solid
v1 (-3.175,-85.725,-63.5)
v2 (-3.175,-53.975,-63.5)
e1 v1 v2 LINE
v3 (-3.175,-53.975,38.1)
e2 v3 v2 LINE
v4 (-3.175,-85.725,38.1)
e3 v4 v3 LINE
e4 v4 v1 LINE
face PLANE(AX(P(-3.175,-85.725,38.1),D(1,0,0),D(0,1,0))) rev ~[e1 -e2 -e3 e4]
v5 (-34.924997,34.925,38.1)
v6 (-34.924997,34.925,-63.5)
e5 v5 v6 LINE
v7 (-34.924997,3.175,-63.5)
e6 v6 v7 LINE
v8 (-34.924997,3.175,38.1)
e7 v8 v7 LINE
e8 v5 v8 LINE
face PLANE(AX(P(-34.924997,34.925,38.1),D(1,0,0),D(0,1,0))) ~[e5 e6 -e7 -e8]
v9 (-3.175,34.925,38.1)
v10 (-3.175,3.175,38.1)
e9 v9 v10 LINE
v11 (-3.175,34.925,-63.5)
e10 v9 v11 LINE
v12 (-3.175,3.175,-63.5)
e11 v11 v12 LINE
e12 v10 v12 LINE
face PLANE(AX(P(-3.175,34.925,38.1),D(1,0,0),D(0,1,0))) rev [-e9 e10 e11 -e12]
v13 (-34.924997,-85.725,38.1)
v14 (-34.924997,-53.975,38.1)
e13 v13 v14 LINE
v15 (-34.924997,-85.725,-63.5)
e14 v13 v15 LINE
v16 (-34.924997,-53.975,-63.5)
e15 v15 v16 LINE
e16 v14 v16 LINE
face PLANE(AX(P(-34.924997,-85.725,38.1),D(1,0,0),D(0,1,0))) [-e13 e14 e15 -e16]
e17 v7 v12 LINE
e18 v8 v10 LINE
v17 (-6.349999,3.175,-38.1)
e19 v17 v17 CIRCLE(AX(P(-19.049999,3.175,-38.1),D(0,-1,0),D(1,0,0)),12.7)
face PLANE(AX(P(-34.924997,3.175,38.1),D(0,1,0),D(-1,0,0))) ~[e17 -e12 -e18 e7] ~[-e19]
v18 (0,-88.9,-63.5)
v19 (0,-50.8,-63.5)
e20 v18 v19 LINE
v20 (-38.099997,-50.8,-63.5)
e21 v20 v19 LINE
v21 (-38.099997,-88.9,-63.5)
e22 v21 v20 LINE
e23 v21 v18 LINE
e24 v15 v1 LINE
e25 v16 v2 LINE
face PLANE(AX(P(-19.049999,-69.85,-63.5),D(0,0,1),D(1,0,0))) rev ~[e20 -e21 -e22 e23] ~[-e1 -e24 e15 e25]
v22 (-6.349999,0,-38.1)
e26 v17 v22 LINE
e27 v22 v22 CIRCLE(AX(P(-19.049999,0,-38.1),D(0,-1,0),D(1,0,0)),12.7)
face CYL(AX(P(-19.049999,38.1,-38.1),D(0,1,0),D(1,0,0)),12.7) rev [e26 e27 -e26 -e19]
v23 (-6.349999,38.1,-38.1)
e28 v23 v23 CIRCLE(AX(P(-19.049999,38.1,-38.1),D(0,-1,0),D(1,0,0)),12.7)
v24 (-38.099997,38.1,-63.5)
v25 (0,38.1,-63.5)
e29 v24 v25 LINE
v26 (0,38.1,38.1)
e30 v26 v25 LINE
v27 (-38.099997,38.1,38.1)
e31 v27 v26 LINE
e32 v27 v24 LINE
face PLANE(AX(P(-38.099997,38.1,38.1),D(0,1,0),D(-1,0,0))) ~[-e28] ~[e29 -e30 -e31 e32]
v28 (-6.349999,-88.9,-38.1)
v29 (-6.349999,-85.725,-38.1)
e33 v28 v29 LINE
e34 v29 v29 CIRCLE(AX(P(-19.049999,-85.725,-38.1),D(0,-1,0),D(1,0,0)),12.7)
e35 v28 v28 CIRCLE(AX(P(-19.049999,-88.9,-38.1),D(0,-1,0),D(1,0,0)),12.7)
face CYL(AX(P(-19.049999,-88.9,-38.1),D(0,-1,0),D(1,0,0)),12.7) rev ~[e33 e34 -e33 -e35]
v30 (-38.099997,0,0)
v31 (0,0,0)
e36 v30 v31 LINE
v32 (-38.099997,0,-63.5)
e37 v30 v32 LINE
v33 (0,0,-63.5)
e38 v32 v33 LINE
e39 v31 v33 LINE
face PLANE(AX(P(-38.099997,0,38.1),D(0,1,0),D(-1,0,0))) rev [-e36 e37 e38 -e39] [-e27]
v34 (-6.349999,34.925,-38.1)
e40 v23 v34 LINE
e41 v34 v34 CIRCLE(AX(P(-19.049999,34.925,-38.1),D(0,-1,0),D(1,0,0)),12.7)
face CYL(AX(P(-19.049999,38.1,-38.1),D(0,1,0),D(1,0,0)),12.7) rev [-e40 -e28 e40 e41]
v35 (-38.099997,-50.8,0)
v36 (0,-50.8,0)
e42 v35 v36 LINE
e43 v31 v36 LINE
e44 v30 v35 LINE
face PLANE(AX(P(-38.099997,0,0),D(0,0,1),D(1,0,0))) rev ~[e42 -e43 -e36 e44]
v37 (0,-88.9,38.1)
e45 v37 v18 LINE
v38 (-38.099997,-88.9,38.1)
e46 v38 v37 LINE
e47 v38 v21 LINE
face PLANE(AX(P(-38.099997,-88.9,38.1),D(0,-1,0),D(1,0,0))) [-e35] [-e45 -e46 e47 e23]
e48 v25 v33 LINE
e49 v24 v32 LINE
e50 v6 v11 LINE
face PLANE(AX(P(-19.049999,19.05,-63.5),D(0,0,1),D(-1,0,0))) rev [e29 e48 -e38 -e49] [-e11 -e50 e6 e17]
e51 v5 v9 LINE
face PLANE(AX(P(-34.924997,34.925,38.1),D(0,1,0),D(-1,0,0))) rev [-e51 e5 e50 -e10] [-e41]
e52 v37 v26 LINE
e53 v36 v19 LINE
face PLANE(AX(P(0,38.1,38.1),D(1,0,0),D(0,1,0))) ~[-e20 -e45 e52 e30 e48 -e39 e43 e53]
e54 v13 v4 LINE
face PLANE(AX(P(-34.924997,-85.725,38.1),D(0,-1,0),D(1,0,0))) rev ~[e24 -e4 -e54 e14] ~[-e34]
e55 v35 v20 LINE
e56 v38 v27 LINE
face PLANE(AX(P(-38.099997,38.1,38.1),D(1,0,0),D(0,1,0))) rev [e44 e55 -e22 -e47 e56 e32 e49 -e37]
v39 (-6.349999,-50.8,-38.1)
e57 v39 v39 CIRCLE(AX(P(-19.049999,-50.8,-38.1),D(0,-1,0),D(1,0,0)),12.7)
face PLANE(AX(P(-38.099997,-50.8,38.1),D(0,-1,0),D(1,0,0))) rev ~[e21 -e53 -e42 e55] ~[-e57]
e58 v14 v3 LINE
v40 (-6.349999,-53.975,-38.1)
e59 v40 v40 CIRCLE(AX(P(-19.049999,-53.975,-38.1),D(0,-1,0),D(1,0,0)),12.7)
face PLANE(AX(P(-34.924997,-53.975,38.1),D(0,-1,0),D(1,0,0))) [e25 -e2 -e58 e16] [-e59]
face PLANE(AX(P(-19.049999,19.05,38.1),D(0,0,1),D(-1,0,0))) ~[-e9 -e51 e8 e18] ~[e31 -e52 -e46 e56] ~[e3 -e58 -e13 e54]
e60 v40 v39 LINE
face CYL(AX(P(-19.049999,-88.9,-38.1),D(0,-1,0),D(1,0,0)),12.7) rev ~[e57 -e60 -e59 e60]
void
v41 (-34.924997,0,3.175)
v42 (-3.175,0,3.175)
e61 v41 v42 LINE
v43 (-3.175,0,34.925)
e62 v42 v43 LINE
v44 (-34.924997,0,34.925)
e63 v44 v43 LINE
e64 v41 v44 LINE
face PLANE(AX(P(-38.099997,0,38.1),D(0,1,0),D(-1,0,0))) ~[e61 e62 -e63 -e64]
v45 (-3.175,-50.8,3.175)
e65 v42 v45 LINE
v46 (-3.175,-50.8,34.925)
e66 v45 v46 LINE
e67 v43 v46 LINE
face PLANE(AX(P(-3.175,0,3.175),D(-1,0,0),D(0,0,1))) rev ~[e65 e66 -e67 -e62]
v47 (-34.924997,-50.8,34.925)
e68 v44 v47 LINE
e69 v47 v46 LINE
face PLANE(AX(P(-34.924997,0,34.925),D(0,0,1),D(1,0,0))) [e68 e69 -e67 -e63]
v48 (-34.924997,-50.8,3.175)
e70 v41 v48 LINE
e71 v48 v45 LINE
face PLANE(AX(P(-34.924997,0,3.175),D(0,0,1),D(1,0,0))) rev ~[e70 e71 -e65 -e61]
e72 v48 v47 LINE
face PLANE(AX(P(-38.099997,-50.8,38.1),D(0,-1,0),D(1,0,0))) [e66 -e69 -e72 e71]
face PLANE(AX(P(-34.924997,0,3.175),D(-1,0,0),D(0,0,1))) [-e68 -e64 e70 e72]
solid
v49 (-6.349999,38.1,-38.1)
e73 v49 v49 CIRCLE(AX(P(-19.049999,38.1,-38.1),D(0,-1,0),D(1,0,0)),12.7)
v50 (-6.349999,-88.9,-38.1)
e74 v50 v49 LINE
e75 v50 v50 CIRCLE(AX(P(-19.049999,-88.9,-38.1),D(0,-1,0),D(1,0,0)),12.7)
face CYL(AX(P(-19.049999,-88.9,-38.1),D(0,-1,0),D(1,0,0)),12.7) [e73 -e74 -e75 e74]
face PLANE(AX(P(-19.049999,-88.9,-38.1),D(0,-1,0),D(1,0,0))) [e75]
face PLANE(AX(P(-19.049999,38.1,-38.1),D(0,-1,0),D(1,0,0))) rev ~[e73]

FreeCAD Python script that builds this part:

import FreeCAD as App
import Part
import Sketcher
from FreeCAD import Vector
Q = App.Units.Quantity

doc = App.newDocument("Part")
params = doc.addObject("Spreadsheet::Sheet", "Params")
for row, (alias, value) in enumerate([
    ("sketch1_width", "1.4999999 in"),
    ("sketch1_height", "1.5 in"),
    ("sketch1_width2", "1.2499999 in"),
    ("sketch1_height2", "1.25 in"),
    ("pad1_length", "2 in"),
    ("sketch2_width", "1.4999999 in"),
    ("sketch2_height", "1.5 in"),
    ("sketch2_width2", "1.2499999 in"),
    ("sketch2_height2", "1.25 in"),
    ("pad2_length", "4 in"),
    ("sketch3_diameter", "1 in"),
    ("sketch4_diameter", "1 in"),
    ("pad3_length", "5 in"),
], start=1):
    params.set(f"A{row}", alias)
    params.set(f"B{row}", "=" + value)
    params.setAlias(f"B{row}", alias)

body = doc.addObject("PartDesign::Body", "Body")

# Sketch on XZ plane
sketch1 = body.newObject("Sketcher::SketchObject", "Sketch")
sketch1.AttachmentSupport = (doc.getObject("XZ_Plane"), [""])
sketch1.MapMode = "FlatFace"
sketch1.addGeometry([
    Part.LineSegment(Vector(-38, 38, 0), Vector(-38, 0, 0)),  # 0
    Part.LineSegment(Vector(-38, 0, 0), Vector(0, 0, 0)),  # 1
    Part.LineSegment(Vector(0, 0, 0), Vector(0, 38, 0)),  # 2
    Part.LineSegment(Vector(0, 38, 0), Vector(-38, 38, 0)),  # 3
    Part.LineSegment(Vector(-3, 3, 0), Vector(-35, 3, 0)),  # 4
    Part.LineSegment(Vector(-35, 3, 0), Vector(-35, 35, 0)),  # 5
    Part.LineSegment(Vector(-35, 35, 0), Vector(-3, 35, 0)),  # 6
    Part.LineSegment(Vector(-3, 35, 0), Vector(-3, 3, 0)),  # 7
], False)
sketch1.addConstraint([
    Sketcher.Constraint("Coincident", 0, 2, 1, 1),
    Sketcher.Constraint("Coincident", 1, 2, 2, 1),
    Sketcher.Constraint("Coincident", 2, 2, 3, 1),
    Sketcher.Constraint("Coincident", 3, 2, 0, 1),
    Sketcher.Constraint("Coincident", 4, 2, 5, 1),
    Sketcher.Constraint("Coincident", 5, 2, 6, 1),
    Sketcher.Constraint("Coincident", 6, 2, 7, 1),
    Sketcher.Constraint("Coincident", 7, 2, 4, 1),
    Sketcher.Constraint("Vertical", 0),
    Sketcher.Constraint("Horizontal", 1),
    Sketcher.Constraint("Vertical", 2),
    Sketcher.Constraint("Horizontal", 3),
    Sketcher.Constraint("Horizontal", 4),
    Sketcher.Constraint("Vertical", 5),
    Sketcher.Constraint("Horizontal", 6),
    Sketcher.Constraint("Vertical", 7),
    Sketcher.Constraint("Coincident", 1, 2, -1, 1),
    Sketcher.Constraint("DistanceX", 1, 1, 1, 2, Q("1.4999999 in")),
    Sketcher.Constraint("DistanceY", 0, 2, 0, 1, Q("1.5 in")),
    Sketcher.Constraint("DistanceX", 4, 2, 4, 1, Q("1.2499999 in")),
    Sketcher.Constraint("DistanceY", 5, 1, 5, 2, Q("1.25 in")),
    Sketcher.Constraint("DistanceX", 4, 2, -1, 1, Q("1.3749999 in")),
    Sketcher.Constraint("DistanceY", -1, 1, 4, 2, Q("0.125 in")),
])
sketch1.setExpression("Constraints[17]", "Params.sketch1_width")
sketch1.setExpression("Constraints[18]", "Params.sketch1_height")
sketch1.setExpression("Constraints[19]", "Params.sketch1_width2")
sketch1.setExpression("Constraints[20]", "Params.sketch1_height2")
pad1 = body.newObject("PartDesign::Pad", "Pad")
pad1.Profile = sketch1
pad1.setExpression("Length", "Params.pad1_length")
body2 = doc.addObject("PartDesign::Body", "Body001")

# Sketch on XY plane
sketch2 = body2.newObject("Sketcher::SketchObject", "Sketch001")
sketch2.AttachmentSupport = (doc.getObject("XY_Plane001"), [""])
sketch2.MapMode = "FlatFace"
sketch2.AttachmentOffset = App.Placement(Vector(0, 0, 1.5 * 25.4), App.Rotation())
sketch2.addGeometry([
    Part.LineSegment(Vector(-38, -51, 0), Vector(-38, -89, 0)),  # 0
    Part.LineSegment(Vector(-38, -89, 0), Vector(0, -89, 0)),  # 1
    Part.LineSegment(Vector(0, -89, 0), Vector(0, -51, 0)),  # 2
    Part.LineSegment(Vector(0, -51, 0), Vector(-38, -51, 0)),  # 3
    Part.LineSegment(Vector(-3, -86, 0), Vector(-35, -86, 0)),  # 4
    Part.LineSegment(Vector(-35, -86, 0), Vector(-35, -54, 0)),  # 5
    Part.LineSegment(Vector(-35, -54, 0), Vector(-3, -54, 0)),  # 6
    Part.LineSegment(Vector(-3, -54, 0), Vector(-3, -86, 0)),  # 7
], False)
sketch2.addConstraint([
    Sketcher.Constraint("Coincident", 0, 2, 1, 1),
    Sketcher.Constraint("Coincident", 1, 2, 2, 1),
    Sketcher.Constraint("Coincident", 2, 2, 3, 1),
    Sketcher.Constraint("Coincident", 3, 2, 0, 1),
    Sketcher.Constraint("Coincident", 4, 2, 5, 1),
    Sketcher.Constraint("Coincident", 5, 2, 6, 1),
    Sketcher.Constraint("Coincident", 6, 2, 7, 1),
    Sketcher.Constraint("Coincident", 7, 2, 4, 1),
    Sketcher.Constraint("Vertical", 0),
    Sketcher.Constraint("Horizontal", 1),
    Sketcher.Constraint("Vertical", 2),
    Sketcher.Constraint("Horizontal", 3),
    Sketcher.Constraint("Horizontal", 4),
    Sketcher.Constraint("Vertical", 5),
    Sketcher.Constraint("Horizontal", 6),
    Sketcher.Constraint("Vertical", 7),
    Sketcher.Constraint("PointOnObject", 1, 2, -2),
    Sketcher.Constraint("DistanceX", 1, 1, 1, 2, Q("1.4999999 in")),
    Sketcher.Constraint("DistanceY", 0, 2, 0, 1, Q("1.5 in")),
    Sketcher.Constraint("DistanceY", 2, 2, -1, 1, Q("2 in")),
    Sketcher.Constraint("DistanceX", 4, 2, 4, 1, Q("1.2499999 in")),
    Sketcher.Constraint("DistanceY", 5, 1, 5, 2, Q("1.25 in")),
    Sketcher.Constraint("DistanceX", 4, 2, -1, 1, Q("1.3749999 in")),
    Sketcher.Constraint("DistanceY", 4, 2, -1, 1, Q("3.375 in")),
])
sketch2.setExpression("Constraints[17]", "Params.sketch2_width")
sketch2.setExpression("Constraints[18]", "Params.sketch2_height")
sketch2.setExpression("Constraints[20]", "Params.sketch2_width2")
sketch2.setExpression("Constraints[21]", "Params.sketch2_height2")
pad2 = body2.newObject("PartDesign::Pad", "Pad001")
pad2.Profile = sketch2
pad2.setExpression("Length", "Params.pad2_length")
pad2.Reversed = True

# Sketch on XZ plane
sketch3 = body2.newObject("Sketcher::SketchObject", "Sketch002")
sketch3.AttachmentSupport = (doc.getObject("XZ_Plane001"), [""])
sketch3.MapMode = "FlatFace"
sketch3.AttachmentOffset = App.Placement(Vector(0, 0, 3.5 * 25.4), App.Rotation())
sketch3.addGeometry(Part.Circle(Vector(-19, -38, 0), Vector(0, 0, 1), 13), False)
sketch3.addConstraint([
    Sketcher.Constraint("Diameter", 0, Q("1 in")),
    Sketcher.Constraint("DistanceY", 0, 3, -1, 1, Q("1.5 in")),
    Sketcher.Constraint("DistanceX", 0, 3, -1, 1, Q("0.7499999 in")),
])
sketch3.setExpression("Constraints[0]", "Params.sketch3_diameter")
pocket1 = body2.newObject("PartDesign::Pocket", "Pocket")
pocket1.Profile = sketch3
pocket1.Type = "ThroughAll"
doc.recompute()

body3 = doc.addObject("PartDesign::Body", "Body002")
body3.BaseFeature = body2
boolean = body.newObject("PartDesign::Boolean", "Boolean")
boolean.Type = "Fuse"
boolean.addObjects([body3])
doc.recompute()

mirroring = doc.addObject("Part::Mirroring", "Mirroring")
mirroring.Source = body2
mirroring.Base = Vector(-19.049999, -25.4, 19.05)
mirroring.Normal = Vector(0, 1, 0)
body4 = doc.addObject("PartDesign::Body", "Body003")
body4.BaseFeature = mirroring
boolean2 = body.newObject("PartDesign::Boolean", "Boolean001")
boolean2.Type = "Fuse"
boolean2.addObjects([body4])
doc.recompute()
body5 = doc.addObject("PartDesign::Body", "Body004")

# Sketch on XZ plane
sketch4 = body5.newObject("Sketcher::SketchObject", "Sketch003")
sketch4.AttachmentSupport = (doc.getObject("XZ_Plane004"), [""])
sketch4.MapMode = "FlatFace"
sketch4.AttachmentOffset = App.Placement(Vector(0, 0, 3.5 * 25.4), App.Rotation())
sketch4.addGeometry(Part.Circle(Vector(-19, -38, 0), Vector(0, 0, 1), 13), False)
sketch4.addConstraint([
    Sketcher.Constraint("Diameter", 0, Q("1 in")),
    Sketcher.Constraint("DistanceY", 0, 3, -1, 1, Q("1.5 in")),
    Sketcher.Constraint("DistanceX", 0, 3, -1, 1, Q("0.7499999 in")),
])
sketch4.setExpression("Constraints[0]", "Params.sketch4_diameter")
pad3 = body5.newObject("PartDesign::Pad", "Pad002")
pad3.Profile = sketch4
pad3.setExpression("Length", "Params.pad3_length")
pad3.Reversed = True
mirroring.Visibility = False

doc.recompute()
